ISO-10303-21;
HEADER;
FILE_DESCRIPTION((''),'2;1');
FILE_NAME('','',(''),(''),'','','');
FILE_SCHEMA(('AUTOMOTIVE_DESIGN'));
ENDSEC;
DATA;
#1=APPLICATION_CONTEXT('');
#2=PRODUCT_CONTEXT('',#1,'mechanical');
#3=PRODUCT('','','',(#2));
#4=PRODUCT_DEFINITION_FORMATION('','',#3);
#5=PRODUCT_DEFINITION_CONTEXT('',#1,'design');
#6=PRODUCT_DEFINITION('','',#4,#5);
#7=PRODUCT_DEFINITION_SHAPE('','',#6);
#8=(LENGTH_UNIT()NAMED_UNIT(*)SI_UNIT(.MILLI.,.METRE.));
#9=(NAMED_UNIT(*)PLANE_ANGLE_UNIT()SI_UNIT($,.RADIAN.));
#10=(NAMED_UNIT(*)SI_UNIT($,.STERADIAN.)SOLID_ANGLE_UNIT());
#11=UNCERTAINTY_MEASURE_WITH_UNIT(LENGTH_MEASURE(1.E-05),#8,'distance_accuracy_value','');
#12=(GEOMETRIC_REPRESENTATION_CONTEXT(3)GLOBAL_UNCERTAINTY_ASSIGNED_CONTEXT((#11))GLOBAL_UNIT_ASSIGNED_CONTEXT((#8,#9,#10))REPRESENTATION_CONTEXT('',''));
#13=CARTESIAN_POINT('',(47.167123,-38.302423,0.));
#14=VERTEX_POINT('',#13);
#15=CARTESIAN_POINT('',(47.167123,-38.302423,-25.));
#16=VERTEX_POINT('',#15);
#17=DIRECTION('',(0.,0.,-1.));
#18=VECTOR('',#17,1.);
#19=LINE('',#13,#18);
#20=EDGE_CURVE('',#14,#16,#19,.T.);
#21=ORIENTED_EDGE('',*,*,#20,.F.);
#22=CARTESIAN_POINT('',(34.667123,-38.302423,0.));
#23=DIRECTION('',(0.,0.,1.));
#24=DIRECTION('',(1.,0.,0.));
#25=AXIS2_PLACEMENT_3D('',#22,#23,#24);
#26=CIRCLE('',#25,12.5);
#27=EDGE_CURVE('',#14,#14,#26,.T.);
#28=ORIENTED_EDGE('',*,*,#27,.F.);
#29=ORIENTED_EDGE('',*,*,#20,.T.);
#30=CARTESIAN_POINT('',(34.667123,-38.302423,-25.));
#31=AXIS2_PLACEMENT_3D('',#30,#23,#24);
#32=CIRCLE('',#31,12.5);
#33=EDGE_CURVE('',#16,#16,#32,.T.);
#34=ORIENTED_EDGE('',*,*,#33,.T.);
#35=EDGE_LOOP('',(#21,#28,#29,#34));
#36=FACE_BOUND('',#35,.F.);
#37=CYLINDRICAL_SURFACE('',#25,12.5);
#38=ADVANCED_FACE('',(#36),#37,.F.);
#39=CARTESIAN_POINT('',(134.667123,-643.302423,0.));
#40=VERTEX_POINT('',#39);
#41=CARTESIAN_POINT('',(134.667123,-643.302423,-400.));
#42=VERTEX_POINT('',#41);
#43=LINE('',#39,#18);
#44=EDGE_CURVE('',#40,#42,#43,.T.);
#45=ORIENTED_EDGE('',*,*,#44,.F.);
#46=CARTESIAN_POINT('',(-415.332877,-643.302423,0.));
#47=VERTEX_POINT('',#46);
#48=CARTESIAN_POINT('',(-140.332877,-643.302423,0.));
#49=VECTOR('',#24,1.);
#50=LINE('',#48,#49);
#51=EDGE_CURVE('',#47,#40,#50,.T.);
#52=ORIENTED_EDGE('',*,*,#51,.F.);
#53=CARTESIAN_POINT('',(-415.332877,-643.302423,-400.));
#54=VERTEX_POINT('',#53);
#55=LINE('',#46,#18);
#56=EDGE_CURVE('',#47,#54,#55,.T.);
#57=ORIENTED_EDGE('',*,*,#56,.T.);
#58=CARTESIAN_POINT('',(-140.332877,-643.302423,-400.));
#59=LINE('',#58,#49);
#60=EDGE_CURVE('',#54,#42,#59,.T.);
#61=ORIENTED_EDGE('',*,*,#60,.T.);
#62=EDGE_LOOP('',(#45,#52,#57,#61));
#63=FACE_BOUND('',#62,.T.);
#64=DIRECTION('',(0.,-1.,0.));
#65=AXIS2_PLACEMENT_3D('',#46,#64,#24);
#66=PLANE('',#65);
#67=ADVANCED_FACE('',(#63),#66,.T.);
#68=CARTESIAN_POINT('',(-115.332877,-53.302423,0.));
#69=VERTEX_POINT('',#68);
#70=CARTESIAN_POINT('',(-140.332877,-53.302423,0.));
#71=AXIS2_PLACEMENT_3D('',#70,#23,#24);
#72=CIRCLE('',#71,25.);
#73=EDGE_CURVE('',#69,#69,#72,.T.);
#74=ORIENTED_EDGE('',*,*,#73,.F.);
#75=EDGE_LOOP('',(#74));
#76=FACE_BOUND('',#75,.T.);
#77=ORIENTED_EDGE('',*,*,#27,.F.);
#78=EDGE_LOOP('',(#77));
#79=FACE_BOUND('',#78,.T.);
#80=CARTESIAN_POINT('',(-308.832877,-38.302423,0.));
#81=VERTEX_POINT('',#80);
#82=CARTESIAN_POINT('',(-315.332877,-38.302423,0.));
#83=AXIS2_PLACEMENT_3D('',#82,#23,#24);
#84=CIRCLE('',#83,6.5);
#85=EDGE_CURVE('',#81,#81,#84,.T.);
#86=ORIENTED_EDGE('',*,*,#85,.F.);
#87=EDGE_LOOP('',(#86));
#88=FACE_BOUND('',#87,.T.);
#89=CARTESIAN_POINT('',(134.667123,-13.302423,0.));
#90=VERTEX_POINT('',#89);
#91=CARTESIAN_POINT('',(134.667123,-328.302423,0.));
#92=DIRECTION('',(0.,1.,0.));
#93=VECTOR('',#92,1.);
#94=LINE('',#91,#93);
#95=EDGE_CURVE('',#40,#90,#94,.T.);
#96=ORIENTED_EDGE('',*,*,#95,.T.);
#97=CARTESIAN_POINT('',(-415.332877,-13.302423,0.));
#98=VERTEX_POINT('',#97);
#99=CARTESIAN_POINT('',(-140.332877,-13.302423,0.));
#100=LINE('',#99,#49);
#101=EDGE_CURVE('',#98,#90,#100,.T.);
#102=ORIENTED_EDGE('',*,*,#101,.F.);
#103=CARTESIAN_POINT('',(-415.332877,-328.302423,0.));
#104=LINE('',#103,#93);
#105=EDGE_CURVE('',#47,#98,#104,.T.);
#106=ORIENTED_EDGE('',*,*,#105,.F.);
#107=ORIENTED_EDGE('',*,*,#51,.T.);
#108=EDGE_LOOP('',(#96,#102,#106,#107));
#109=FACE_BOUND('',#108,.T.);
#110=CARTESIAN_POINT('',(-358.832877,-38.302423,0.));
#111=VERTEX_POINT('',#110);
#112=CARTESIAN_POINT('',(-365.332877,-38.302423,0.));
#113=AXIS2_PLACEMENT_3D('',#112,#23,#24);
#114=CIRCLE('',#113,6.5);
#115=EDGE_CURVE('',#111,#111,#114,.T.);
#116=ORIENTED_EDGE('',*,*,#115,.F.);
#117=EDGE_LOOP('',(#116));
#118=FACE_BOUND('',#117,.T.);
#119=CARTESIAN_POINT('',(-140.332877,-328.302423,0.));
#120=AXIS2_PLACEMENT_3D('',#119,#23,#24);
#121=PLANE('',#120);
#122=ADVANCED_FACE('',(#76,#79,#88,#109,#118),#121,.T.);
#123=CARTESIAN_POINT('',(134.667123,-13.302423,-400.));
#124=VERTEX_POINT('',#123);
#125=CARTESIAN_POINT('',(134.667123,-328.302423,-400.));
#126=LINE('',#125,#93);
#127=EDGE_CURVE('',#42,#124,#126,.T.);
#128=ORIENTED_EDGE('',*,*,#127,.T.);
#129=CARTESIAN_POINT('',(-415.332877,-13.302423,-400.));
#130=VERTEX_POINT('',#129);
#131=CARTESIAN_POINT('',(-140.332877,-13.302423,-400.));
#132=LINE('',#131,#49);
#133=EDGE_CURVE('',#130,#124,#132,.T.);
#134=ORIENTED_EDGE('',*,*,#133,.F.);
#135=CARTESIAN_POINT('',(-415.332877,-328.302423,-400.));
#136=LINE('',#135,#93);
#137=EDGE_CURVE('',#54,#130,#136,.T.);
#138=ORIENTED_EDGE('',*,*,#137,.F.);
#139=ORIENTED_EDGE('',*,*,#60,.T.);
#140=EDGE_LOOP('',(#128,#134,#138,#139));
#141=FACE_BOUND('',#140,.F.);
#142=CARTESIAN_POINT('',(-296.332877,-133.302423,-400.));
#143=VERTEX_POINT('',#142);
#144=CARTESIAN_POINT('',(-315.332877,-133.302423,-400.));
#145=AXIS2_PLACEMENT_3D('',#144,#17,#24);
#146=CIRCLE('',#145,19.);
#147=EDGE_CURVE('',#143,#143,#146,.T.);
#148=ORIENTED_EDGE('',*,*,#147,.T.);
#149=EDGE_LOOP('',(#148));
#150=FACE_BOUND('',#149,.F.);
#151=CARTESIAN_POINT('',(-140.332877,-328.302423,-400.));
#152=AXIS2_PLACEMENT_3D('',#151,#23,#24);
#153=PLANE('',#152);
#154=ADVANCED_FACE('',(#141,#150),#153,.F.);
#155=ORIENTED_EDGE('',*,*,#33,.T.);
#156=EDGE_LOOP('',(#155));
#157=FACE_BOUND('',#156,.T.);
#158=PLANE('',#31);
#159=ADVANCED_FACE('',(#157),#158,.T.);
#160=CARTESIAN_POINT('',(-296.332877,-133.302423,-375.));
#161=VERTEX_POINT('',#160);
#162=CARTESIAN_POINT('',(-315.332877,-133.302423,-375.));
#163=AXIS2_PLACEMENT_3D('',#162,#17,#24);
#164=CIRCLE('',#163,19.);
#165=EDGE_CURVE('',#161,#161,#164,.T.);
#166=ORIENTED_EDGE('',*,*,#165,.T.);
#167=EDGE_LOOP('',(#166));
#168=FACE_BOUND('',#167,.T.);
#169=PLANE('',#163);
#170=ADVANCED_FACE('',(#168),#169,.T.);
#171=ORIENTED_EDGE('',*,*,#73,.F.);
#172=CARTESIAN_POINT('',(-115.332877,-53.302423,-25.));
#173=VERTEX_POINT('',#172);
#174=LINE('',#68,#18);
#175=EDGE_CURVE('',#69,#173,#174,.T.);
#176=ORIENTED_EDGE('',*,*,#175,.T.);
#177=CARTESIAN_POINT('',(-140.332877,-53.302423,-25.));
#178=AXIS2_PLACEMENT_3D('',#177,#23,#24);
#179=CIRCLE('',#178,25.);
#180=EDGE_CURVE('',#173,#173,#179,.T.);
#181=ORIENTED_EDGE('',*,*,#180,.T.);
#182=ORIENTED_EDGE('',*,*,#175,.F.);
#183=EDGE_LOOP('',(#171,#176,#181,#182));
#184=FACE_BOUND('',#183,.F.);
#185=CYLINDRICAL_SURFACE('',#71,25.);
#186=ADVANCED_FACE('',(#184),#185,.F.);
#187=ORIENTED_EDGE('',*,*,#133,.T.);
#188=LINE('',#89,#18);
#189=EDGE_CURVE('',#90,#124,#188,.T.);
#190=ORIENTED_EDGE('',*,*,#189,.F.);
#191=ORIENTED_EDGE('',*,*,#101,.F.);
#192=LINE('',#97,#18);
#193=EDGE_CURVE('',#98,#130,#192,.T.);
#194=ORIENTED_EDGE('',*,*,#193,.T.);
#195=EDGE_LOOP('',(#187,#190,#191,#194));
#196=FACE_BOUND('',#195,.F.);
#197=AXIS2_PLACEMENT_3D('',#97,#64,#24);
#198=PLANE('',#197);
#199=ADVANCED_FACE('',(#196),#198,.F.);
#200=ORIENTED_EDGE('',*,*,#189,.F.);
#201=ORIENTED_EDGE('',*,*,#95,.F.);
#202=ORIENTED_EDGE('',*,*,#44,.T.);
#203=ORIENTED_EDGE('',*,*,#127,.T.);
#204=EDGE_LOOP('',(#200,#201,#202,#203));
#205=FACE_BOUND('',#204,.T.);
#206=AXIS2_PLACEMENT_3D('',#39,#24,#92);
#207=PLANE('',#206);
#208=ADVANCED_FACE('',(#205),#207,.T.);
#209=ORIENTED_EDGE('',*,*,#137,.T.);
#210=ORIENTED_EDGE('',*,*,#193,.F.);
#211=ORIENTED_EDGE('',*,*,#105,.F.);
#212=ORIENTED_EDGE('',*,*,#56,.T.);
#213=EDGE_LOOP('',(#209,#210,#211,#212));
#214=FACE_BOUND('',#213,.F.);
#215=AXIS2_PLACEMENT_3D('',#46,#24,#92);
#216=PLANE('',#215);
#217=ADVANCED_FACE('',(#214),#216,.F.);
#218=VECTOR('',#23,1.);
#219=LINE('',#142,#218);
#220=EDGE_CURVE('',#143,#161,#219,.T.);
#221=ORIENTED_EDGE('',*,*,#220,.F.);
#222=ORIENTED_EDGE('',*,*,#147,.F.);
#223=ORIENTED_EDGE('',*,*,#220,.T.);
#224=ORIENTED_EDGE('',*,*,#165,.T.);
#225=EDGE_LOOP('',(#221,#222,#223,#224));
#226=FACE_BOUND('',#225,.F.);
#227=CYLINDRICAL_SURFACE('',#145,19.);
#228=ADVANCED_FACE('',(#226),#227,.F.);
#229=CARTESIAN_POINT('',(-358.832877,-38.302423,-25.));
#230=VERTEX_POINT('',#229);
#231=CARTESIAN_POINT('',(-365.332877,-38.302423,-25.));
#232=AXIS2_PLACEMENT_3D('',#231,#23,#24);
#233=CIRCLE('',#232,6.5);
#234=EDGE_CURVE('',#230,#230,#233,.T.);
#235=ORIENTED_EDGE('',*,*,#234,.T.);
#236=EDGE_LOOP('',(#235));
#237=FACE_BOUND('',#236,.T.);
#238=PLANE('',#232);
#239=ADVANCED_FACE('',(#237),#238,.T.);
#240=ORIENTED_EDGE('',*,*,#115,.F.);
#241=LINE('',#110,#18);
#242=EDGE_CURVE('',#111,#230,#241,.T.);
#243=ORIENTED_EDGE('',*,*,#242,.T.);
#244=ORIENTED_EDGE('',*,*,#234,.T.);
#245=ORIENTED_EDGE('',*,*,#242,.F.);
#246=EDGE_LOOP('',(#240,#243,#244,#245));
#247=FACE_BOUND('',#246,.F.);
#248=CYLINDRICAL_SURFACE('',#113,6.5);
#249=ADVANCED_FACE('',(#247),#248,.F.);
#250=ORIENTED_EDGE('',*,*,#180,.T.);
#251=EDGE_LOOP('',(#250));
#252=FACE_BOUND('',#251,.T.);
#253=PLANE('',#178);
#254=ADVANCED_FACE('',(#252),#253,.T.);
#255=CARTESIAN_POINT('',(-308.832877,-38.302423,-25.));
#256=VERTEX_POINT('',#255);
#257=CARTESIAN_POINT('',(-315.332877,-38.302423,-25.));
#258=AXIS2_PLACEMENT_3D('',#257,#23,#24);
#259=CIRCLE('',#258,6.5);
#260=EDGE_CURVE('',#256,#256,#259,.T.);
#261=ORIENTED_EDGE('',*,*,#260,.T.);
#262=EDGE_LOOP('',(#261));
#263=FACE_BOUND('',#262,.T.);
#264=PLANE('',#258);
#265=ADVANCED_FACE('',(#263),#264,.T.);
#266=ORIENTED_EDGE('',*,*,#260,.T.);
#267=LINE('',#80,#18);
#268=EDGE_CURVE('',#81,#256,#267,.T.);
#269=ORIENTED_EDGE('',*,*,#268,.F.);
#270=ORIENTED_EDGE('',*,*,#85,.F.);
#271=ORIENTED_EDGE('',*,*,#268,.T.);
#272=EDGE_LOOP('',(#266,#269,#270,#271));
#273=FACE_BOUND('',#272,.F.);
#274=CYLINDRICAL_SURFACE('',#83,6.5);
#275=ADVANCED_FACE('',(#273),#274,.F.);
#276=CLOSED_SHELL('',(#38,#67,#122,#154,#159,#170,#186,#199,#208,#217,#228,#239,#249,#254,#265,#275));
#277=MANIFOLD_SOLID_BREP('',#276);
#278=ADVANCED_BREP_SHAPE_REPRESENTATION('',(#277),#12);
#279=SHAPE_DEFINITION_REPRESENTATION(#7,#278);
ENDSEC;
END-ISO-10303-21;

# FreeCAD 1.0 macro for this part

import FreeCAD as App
import Part
import Sketcher
from FreeCAD import Vector
Q = App.Units.Quantity

doc = App.newDocument("Part")
body = doc.addObject("PartDesign::Body", "Body")

# Sketch on XY plane
sketch1 = body.newObject("Sketcher::SketchObject", "Sketch")
sketch1.AttachmentSupport = (doc.getObject("XY_Plane"), [""])
sketch1.MapMode = "FlatFace"
sketch1.addGeometry([
    Part.LineSegment(Vector(-415, -13, 0), Vector(-415, -643, 0)),
    Part.LineSegment(Vector(-415, -643, 0), Vector(135, -643, 0)),
    Part.LineSegment(Vector(135, -643, 0), Vector(135, -13, 0)),
    Part.LineSegment(Vector(135, -13, 0), Vector(-415, -13, 0)),
], False)
sketch1.addConstraint([
    Sketcher.Constraint("Coincident", 0, 2, 1, 1),
    Sketcher.Constraint("Coincident", 1, 2, 2, 1),
    Sketcher.Constraint("Coincident", 2, 2, 3, 1),
    Sketcher.Constraint("Coincident", 3, 2, 0, 1),
    Sketcher.Constraint("Vertical", 0),
    Sketcher.Constraint("Horizontal", 1),
    Sketcher.Constraint("Vertical", 2),
    Sketcher.Constraint("Horizontal", 3),
    Sketcher.Constraint("DistanceX", 1, 1, 1, 2, Q("550 mm")),
    Sketcher.Constraint("DistanceY", 0, 2, 0, 1, Q("630 mm")),
    Sketcher.Constraint("DistanceX", 0, 2, -1, 1, Q("415.332877 mm")),
    Sketcher.Constraint("DistanceY", 0, 2, -1, 1, Q("643.302423 mm")),
])
pad1 = body.newObject("PartDesign::Pad", "Pad")
pad1.Profile = sketch1
pad1.Length = 400
pad1.Reversed = True

# Sketch on XY plane
sketch2 = body.newObject("Sketcher::SketchObject", "Sketch001")
sketch2.AttachmentSupport = (doc.getObject("XY_Plane"), [""])
sketch2.MapMode = "FlatFace"
sketch2.AttachmentOffset = App.Placement(Vector(0, 0, -400), App.Rotation())
sketch2.addGeometry(Part.Circle(Vector(-315, -133, 0), Vector(0, 0, 1), 19), False)
sketch2.addConstraint([
    Sketcher.Constraint("Diameter", 0, Q("38 mm")),
    Sketcher.Constraint("DistanceX", 0, 3, -1, 1, Q("315.332877 mm")),
    Sketcher.Constraint("DistanceY", 0, 3, -1, 1, Q("133.302423 mm")),
])
pocket1 = body.newObject("PartDesign::Pocket", "Pocket")
pocket1.Profile = sketch2
pocket1.Length = 25
pocket1.Reversed = True

# Sketch on XY plane
sketch3 = body.newObject("Sketcher::SketchObject", "Sketch002")
sketch3.AttachmentSupport = (doc.getObject("XY_Plane"), [""])
sketch3.MapMode = "FlatFace"
sketch3.addGeometry([
    Part.Circle(Vector(35, -38, 0), Vector(0, 0, 1), 12),
    Part.Circle(Vector(-365, -38, 0), Vector(0, 0, 1), 6),
    Part.Circle(Vector(-140, -53, 0), Vector(0, 0, 1), 25),
    Part.Circle(Vector(-315, -38, 0), Vector(0, 0, 1), 6),
], False)
sketch3.addConstraint([
    Sketcher.Constraint("Equal", 1, 3),
    Sketcher.Constraint("Horizontal", 0, 3, 1, 3),
    Sketcher.Constraint("Horizontal", 1, 3, 3, 3),
    Sketcher.Constraint("Diameter", 0, Q("25 mm")),
    Sketcher.Constraint("Diameter", 1, Q("13 mm")),
    Sketcher.Constraint("Diameter", 2, Q("50 mm")),
    Sketcher.Constraint("DistanceX", 1, 3, 0, 3, Q("400 mm")),
    Sketcher.Constraint("DistanceX", 2, 3, 0, 3, Q("175 mm")),
    Sketcher.Constraint("DistanceY", 2, 3, 0, 3, Q("15 mm")),
    Sketcher.Constraint("DistanceX", 1, 3, 3, 3, Q("50 mm")),
    Sketcher.Constraint("DistanceX", -1, 1, 0, 3, Q("34.667123 mm")),
    Sketcher.Constraint("DistanceY", 0, 3, -1, 1, Q("38.302423 mm")),
])
pocket2 = body.newObject("PartDesign::Pocket", "Pocket001")
pocket2.Profile = sketch3
pocket2.Length = 25

doc.recompute()
